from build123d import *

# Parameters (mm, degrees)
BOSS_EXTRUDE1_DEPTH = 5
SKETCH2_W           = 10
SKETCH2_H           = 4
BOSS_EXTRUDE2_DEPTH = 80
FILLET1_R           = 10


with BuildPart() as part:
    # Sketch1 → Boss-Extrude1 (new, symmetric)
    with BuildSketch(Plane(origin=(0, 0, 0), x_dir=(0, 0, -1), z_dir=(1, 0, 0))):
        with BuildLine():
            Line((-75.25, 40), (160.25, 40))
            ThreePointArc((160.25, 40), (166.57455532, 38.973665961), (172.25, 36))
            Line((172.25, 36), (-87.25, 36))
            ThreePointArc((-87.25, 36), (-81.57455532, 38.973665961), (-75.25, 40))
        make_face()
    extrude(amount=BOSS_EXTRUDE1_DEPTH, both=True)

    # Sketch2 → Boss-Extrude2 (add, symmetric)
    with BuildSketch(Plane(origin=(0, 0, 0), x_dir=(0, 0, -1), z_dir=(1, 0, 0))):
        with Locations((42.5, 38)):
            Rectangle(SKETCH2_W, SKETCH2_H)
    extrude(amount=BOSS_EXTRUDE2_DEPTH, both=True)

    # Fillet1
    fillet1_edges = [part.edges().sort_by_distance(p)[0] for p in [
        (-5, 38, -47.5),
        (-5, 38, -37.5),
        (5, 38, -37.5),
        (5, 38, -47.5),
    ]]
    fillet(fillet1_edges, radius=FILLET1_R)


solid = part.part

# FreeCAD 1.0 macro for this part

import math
import FreeCAD as App
import Part
import Sketcher
from FreeCAD import Vector
Q = App.Units.Quantity


def edges_at(feature, points):
    """Names of the edges that pass closest to the given points."""
    edges = feature.Shape.Edges
    near = lambda p: min(range(len(edges)), key=lambda i: edges[i].distToShape(Part.Vertex(*p))[0])
    return sorted({f"Edge{near(p) + 1}" for p in points})


def add_polygon(sketch, points):
    """Adds a closed chain of lines whose ends are joined by coincident constraints."""
    first, n = sketch.GeometryCount, len(points)
    for a, b in zip(points, points[1:] + points[:1]):
        sketch.addGeometry(Part.LineSegment(App.Vector(*a, 0), App.Vector(*b, 0)), False)
    for i in range(n):
        sketch.addConstraint(Sketcher.Constraint("Coincident", first + i, 2, first + (i + 1) % n, 1))

doc = App.newDocument("Part")
body = doc.addObject("PartDesign::Body", "Body")

# Sketch on YZ plane
sketch1 = body.newObject("Sketcher::SketchObject", "Sketch")
sketch1.AttachmentSupport = (doc.getObject("YZ_Plane"), [""])
sketch1.MapMode = "FlatFace"
sketch1.addGeometry([
    Part.LineSegment(Vector(40, -160, 0), Vector(40, 75, 0)),
    Part.ArcOfCircle(Part.Circle(Vector(20, 75, 0), Vector(0, 0, 1), 20), math.radians(0), math.radians(37)),
    Part.LineSegment(Vector(36, 87, 0), Vector(36, -172, 0)),
    Part.ArcOfCircle(Part.Circle(Vector(20, -160, 0), Vector(0, 0, 1), 20), math.radians(-37), math.radians(0)),
], False)
sketch1.addConstraint([
    Sketcher.Constraint("Tangent", 0, 2, 1, 1),
    Sketcher.Constraint("Coincident", 1, 2, 2, 1),
    Sketcher.Constraint("Coincident", 2, 2, 3, 1),
    Sketcher.Constraint("Tangent", 3, 2, 0, 1),
    Sketcher.Constraint("Vertical", 0),
    Sketcher.Constraint("Vertical", 2),
    Sketcher.Constraint("Equal", 1, 3),
    Sketcher.Constraint("Radius", 1, Q("20 mm")),
    Sketcher.Constraint("DistanceY", 0, 1, 0, 2, Q("235.5 mm")),
    Sketcher.Constraint("DistanceY", 2, 2, 2, 1, Q("259.5 mm")),
    Sketcher.Constraint("DistanceX", -1, 1, 1, 3, Q("20 mm")),
    Sketcher.Constraint("DistanceY", -1, 1, 1, 3, Q("75.25 mm")),
])
pad1 = body.newObject("PartDesign::Pad", "Pad")
pad1.Profile = sketch1
pad1.Length = 10
pad1.Midplane = True

# Sketch on YZ plane
sketch2 = body.newObject("Sketcher::SketchObject", "Sketch001")
sketch2.AttachmentSupport = (doc.getObject("YZ_Plane"), [""])
sketch2.MapMode = "FlatFace"
add_polygon(sketch2, [(40, -37.5), (36, -37.5), (36, -47.5), (40, -47.5)])  # lines 0-3
sketch2.addConstraint([
    Sketcher.Constraint("Horizontal", 0),
    Sketcher.Constraint("Vertical", 1),
    Sketcher.Constraint("Horizontal", 2),
    Sketcher.Constraint("Vertical", 3),
    Sketcher.Constraint("DistanceX", 0, 2, 0, 1, Q("4 mm")),
    Sketcher.Constraint("DistanceY", 1, 2, 1, 1, Q("10 mm")),
    Sketcher.Constraint("DistanceX", -1, 1, 0, 2, Q("36 mm")),
    Sketcher.Constraint("DistanceY", 0, 2, -1, 1, Q("37.5 mm")),
])
pad2 = body.newObject("PartDesign::Pad", "Pad001")
pad2.Profile = sketch2
pad2.Length = 160
pad2.Midplane = True
doc.recompute()

fillet = body.newObject("PartDesign::Fillet", "Fillet")
fillet.Base = (pad2, edges_at(pad2, [
    (-5, 38, -47.5),
    (-5, 38, -37.5),
    (5, 38, -37.5),
    (5, 38, -47.5),
]))
fillet.Radius = 10

doc.recompute()
